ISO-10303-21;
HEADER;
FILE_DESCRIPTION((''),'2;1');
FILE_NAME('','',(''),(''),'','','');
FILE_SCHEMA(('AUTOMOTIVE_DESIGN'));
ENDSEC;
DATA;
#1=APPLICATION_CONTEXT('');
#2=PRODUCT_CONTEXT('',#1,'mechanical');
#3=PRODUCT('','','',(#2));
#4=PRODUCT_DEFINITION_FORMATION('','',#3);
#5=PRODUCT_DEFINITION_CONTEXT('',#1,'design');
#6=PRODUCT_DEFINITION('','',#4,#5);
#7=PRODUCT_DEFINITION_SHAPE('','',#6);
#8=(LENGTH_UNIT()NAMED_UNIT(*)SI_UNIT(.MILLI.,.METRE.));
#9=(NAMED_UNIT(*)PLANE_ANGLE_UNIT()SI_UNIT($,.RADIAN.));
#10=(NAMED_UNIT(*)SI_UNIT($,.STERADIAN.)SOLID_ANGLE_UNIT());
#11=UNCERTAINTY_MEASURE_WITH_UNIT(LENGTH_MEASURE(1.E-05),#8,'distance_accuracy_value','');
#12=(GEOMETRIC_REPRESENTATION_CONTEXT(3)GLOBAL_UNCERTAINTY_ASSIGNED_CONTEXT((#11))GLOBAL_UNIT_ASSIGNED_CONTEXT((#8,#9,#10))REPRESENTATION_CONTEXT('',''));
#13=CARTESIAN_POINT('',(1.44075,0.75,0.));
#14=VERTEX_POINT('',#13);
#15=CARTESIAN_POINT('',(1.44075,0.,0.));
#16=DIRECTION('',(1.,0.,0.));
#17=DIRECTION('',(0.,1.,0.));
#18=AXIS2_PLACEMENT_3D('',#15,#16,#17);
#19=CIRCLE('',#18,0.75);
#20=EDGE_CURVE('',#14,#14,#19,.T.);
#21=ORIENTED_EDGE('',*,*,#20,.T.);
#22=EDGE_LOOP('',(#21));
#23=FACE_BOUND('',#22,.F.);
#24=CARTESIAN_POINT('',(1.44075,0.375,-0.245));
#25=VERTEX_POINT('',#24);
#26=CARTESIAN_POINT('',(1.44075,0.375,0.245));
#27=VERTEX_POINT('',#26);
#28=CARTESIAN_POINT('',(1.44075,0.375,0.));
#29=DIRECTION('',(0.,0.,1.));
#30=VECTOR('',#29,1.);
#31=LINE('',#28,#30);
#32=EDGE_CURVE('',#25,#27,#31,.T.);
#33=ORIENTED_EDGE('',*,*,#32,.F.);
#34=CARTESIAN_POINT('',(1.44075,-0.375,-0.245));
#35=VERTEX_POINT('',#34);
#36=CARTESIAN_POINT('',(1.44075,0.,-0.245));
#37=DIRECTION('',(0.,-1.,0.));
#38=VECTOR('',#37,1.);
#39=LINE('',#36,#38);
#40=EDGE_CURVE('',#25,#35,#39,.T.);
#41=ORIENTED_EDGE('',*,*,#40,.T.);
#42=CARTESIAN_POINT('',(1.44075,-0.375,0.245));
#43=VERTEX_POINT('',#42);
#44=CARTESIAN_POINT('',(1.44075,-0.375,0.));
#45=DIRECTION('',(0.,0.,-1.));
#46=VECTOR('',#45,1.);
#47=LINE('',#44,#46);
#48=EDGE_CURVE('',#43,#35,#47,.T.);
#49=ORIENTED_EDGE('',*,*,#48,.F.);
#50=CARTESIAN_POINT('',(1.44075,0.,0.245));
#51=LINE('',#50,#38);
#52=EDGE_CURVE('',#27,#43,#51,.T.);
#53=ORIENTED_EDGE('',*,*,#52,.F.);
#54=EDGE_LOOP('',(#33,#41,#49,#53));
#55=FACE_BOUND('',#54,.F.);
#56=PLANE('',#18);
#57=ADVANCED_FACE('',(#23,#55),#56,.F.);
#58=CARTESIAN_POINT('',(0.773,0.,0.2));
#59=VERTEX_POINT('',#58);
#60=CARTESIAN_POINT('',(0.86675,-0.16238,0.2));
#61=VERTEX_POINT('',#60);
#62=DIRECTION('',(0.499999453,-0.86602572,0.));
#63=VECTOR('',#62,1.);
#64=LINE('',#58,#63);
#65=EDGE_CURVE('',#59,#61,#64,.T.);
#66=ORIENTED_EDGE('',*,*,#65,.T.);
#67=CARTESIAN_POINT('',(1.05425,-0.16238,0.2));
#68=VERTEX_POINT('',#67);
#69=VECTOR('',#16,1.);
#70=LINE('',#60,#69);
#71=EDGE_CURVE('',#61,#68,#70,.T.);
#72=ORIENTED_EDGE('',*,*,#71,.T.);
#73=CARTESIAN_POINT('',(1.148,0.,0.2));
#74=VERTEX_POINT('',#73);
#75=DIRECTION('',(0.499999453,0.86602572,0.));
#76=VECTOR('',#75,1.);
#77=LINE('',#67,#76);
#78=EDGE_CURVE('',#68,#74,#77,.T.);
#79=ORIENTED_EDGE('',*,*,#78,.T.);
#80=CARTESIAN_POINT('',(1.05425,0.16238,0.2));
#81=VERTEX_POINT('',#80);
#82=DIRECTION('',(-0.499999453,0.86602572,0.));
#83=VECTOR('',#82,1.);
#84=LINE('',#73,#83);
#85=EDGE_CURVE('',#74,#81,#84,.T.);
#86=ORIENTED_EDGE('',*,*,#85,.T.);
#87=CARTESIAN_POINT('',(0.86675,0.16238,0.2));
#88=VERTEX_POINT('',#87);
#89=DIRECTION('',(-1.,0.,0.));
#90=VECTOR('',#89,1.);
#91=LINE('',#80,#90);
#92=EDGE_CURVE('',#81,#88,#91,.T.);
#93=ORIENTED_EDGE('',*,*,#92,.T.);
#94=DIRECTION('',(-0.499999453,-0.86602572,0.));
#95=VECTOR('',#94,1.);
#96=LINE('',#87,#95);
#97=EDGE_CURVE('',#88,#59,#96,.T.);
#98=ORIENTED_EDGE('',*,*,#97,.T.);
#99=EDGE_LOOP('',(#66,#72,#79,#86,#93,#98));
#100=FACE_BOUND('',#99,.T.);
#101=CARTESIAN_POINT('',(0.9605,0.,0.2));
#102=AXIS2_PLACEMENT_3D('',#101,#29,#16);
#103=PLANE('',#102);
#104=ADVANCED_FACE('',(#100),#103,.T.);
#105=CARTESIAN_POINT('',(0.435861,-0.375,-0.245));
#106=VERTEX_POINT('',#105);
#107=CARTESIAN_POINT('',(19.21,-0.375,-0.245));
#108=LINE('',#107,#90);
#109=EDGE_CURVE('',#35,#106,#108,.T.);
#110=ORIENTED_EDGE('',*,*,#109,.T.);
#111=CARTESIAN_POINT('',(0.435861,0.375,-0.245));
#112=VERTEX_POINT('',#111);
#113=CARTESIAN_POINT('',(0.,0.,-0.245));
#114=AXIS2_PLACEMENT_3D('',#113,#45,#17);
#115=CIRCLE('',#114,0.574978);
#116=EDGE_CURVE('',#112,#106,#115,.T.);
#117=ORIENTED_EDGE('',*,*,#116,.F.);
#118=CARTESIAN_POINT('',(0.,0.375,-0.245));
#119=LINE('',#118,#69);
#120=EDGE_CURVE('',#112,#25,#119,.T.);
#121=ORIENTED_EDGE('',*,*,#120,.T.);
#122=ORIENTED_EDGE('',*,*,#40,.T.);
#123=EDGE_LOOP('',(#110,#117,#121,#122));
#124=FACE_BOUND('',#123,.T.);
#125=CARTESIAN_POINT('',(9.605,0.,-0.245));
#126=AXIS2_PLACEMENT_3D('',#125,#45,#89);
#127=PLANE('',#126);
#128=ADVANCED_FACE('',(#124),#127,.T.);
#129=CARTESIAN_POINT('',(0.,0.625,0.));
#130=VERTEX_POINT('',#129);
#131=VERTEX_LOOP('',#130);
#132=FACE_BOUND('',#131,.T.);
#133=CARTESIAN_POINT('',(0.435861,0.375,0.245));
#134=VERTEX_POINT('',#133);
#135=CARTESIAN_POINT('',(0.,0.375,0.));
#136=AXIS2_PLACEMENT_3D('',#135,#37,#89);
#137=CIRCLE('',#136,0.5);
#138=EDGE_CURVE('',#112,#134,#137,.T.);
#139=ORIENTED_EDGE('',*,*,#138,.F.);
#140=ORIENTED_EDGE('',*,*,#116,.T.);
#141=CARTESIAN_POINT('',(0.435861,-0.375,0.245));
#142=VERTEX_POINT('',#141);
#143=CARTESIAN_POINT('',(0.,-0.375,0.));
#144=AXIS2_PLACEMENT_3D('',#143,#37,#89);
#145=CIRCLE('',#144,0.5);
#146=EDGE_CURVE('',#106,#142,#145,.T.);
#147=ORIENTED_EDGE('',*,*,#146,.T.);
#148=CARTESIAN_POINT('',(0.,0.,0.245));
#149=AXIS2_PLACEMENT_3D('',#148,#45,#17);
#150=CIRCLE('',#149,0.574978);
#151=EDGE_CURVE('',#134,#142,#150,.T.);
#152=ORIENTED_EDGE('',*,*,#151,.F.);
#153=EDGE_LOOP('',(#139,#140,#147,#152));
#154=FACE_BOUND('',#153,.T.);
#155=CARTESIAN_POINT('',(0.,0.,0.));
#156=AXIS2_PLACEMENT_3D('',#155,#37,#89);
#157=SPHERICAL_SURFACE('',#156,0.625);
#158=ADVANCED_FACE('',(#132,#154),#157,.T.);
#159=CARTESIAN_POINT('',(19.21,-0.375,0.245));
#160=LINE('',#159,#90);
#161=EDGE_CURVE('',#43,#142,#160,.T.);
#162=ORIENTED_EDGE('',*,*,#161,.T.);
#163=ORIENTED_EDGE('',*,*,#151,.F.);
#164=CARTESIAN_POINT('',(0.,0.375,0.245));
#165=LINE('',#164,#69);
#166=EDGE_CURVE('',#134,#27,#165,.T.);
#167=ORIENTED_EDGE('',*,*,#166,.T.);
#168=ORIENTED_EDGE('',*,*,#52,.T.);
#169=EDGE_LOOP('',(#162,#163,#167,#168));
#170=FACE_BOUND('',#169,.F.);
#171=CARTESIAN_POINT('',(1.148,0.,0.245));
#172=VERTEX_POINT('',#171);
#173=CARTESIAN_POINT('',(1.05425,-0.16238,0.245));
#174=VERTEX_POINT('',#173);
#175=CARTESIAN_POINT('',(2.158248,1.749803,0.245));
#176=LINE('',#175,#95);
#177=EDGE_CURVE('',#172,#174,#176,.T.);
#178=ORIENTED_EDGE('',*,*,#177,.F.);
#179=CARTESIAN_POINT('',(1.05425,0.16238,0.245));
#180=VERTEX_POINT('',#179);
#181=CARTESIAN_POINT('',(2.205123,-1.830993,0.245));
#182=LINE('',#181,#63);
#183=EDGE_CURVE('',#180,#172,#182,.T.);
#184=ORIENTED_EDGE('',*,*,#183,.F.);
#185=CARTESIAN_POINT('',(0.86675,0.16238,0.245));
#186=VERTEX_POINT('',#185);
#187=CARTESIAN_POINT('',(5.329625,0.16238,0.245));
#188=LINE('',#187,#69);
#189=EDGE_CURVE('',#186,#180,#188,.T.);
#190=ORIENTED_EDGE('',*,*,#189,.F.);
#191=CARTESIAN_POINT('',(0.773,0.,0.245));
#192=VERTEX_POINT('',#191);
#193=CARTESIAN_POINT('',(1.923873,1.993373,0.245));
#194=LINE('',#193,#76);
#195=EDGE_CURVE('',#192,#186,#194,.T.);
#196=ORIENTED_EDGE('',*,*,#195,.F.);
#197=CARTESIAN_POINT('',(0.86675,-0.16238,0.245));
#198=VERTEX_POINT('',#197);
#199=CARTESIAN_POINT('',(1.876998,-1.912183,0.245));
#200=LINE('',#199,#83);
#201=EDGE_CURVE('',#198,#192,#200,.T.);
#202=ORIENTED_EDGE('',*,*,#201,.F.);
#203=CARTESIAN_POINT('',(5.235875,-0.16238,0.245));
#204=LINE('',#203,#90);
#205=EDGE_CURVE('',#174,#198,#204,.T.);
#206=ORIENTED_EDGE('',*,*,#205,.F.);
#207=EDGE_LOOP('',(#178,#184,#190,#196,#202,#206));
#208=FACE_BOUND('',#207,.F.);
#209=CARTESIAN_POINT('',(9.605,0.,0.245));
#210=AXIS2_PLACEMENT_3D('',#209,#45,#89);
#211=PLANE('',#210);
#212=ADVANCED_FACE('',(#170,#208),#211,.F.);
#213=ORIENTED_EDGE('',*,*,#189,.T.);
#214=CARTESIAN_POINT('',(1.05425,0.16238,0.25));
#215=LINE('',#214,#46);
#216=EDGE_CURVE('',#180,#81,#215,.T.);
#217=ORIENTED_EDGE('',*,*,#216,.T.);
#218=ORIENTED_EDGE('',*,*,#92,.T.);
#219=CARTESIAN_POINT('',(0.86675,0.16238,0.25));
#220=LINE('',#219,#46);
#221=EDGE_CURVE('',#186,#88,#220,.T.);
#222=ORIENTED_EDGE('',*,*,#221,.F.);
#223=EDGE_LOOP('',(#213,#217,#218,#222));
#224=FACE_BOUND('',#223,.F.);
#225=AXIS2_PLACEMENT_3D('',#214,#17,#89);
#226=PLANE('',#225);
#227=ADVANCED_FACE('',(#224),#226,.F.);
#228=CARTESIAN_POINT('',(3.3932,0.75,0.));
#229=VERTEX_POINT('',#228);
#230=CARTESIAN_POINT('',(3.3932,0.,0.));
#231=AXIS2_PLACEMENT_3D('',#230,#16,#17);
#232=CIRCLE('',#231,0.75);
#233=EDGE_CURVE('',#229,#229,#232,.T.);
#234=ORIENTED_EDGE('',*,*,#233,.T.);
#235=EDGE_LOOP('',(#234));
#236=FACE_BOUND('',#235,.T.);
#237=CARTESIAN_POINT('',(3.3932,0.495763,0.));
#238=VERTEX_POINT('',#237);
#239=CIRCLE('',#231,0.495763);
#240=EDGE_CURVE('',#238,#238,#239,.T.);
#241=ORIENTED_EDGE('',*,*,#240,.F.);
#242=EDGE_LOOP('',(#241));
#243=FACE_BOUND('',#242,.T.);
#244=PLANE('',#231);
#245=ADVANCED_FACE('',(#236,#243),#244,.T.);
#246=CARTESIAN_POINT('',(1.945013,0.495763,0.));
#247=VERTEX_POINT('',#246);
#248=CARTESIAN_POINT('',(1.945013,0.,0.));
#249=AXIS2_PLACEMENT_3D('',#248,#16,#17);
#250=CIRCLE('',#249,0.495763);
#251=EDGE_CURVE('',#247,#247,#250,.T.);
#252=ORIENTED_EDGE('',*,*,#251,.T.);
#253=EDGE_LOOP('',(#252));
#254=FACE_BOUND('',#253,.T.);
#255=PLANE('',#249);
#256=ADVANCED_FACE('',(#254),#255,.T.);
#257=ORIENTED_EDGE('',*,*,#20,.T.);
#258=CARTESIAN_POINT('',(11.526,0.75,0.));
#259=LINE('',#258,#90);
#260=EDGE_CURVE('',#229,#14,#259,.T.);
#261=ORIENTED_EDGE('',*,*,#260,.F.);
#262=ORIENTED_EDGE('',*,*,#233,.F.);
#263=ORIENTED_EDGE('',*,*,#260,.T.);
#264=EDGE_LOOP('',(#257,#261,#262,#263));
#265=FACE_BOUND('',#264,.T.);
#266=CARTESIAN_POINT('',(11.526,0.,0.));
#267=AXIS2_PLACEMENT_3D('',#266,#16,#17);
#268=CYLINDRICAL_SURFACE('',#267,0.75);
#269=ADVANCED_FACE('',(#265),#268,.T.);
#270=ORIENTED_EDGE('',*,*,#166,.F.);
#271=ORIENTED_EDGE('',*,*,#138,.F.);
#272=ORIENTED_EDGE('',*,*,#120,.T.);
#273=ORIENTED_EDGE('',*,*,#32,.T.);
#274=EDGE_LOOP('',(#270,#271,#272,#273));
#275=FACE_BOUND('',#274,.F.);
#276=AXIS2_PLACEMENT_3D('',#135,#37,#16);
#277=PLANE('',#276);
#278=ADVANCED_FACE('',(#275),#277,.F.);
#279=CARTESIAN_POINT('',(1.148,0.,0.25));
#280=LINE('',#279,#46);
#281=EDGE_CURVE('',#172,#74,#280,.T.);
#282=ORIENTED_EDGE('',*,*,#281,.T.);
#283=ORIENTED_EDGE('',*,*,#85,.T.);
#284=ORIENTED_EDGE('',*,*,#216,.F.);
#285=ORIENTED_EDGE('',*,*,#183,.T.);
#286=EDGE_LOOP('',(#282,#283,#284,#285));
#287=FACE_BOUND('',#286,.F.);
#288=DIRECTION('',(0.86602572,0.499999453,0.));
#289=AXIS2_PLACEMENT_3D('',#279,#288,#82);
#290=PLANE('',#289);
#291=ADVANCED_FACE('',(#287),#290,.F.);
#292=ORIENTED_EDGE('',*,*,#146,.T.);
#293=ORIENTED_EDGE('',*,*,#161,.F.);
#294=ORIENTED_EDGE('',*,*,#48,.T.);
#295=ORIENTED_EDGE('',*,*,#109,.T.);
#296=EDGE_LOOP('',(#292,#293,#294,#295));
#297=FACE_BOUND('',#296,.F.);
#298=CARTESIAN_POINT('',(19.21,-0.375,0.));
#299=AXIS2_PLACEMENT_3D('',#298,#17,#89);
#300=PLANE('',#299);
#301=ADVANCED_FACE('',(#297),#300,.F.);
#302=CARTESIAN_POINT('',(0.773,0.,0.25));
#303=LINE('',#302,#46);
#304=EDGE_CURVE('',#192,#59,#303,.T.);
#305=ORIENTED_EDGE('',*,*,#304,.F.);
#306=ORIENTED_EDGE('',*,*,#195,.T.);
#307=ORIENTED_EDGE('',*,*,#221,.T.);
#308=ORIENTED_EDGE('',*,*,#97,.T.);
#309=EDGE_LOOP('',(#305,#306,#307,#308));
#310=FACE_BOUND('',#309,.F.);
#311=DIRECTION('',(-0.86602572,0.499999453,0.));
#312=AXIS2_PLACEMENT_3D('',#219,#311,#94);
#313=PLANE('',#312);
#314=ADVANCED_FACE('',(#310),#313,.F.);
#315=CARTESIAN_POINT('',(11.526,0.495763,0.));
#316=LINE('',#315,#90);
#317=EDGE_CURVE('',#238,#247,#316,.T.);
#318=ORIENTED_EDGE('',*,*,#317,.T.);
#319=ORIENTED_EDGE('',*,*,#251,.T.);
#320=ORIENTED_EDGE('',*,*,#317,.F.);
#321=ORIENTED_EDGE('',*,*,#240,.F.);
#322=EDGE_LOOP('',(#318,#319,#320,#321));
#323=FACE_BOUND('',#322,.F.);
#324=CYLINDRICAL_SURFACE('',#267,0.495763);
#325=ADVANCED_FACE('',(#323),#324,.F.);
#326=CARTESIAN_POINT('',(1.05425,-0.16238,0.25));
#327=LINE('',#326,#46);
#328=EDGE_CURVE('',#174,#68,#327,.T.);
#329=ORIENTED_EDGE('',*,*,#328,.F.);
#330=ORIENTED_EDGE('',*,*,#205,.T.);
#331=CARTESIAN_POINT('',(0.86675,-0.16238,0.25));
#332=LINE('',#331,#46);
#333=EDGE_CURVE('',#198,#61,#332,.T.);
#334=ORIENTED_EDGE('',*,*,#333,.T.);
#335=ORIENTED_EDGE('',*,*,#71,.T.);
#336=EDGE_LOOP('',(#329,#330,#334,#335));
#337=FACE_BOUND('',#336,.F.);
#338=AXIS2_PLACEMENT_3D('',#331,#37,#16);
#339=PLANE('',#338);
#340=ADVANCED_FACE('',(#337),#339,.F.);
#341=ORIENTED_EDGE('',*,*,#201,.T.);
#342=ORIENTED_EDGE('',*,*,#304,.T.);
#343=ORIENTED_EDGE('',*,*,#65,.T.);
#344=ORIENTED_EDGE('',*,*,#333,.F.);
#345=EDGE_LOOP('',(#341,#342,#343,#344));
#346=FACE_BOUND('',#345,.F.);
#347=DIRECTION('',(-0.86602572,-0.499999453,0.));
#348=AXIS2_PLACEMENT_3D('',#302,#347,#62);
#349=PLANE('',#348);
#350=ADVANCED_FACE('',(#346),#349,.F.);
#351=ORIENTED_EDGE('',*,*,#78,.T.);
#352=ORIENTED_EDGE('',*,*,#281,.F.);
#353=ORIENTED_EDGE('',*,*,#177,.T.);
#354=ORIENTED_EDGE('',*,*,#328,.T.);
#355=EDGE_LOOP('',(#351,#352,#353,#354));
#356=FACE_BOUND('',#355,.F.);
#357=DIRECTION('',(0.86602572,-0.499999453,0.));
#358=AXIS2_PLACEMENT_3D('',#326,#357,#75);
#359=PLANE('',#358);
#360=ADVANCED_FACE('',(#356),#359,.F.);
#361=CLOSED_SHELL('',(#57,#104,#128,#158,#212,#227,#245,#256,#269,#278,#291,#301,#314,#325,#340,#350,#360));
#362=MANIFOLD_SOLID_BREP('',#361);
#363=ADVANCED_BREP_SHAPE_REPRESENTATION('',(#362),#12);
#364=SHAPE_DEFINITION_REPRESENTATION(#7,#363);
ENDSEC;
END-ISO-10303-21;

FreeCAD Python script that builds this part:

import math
import FreeCAD as App
import Part
import Sketcher


def add_polygon(sketch, points):
    """Adds a closed chain of lines whose ends are joined by coincident constraints."""
    first, n = sketch.GeometryCount, len(points)
    for a, b in zip(points, points[1:] + points[:1]):
        sketch.addGeometry(Part.LineSegment(App.Vector(*a, 0), App.Vector(*b, 0)), False)
    for i in range(n):
        sketch.addConstraint(Sketcher.Constraint("Coincident", first + i, 2, first + (i + 1) % n, 1))

doc = App.newDocument("Part")
body = doc.addObject("PartDesign::Body", "Body")

sketch1 = body.newObject("Sketcher::SketchObject", "Sketch")
sketch1.AttachmentSupport = (doc.getObject("XY_Plane"), [""])
sketch1.MapMode = "FlatFace"
sketch1.addGeometry(Part.LineSegment(App.Vector(19.21, 0.38, 0), App.Vector(0, 0.38, 0)), False)
sketch1.addGeometry(Part.ArcOfCircle(Part.Circle(App.Vector(0, 0, 0), App.Vector(0, 0, 1), 0.38), math.radians(90), math.radians(270)), False)
sketch1.addGeometry(Part.LineSegment(App.Vector(0, -0.38, 0), App.Vector(19.21, -0.38, 0)), False)
sketch1.addGeometry(Part.ArcOfCircle(Part.Circle(App.Vector(19.21, 0, 0), App.Vector(0, 0, 1), 0.38), math.radians(-90), math.radians(90)), False)
sketch1.addConstraint(Sketcher.Constraint("Tangent", 0, 2, 1, 1))
sketch1.addConstraint(Sketcher.Constraint("Tangent", 1, 2, 2, 1))
sketch1.addConstraint(Sketcher.Constraint("Tangent", 2, 2, 3, 1))
sketch1.addConstraint(Sketcher.Constraint("Tangent", 3, 2, 0, 1))
sketch1.addConstraint(Sketcher.Constraint("Horizontal", 0))
sketch1.addConstraint(Sketcher.Constraint("Horizontal", 2))
sketch1.addConstraint(Sketcher.Constraint("Coincident", 1, 3, -1, 1))
sketch1.addConstraint(Sketcher.Constraint("Radius", 1, 0.375))
sketch1.addConstraint(Sketcher.Constraint("DistanceX", 0, 2, 0, 1, 19.21))
pad1 = body.newObject("PartDesign::Pad", "Pad")
pad1.Profile = sketch1
pad1.Length = 0.49
pad1.Midplane = True

sketch2 = body.newObject("Sketcher::SketchObject", "Sketch001")
sketch2.AttachmentSupport = (doc.getObject("XY_Plane"), [""])
sketch2.MapMode = "FlatFace"
sketch2.addGeometry(Part.LineSegment(App.Vector(0, -0.6, 0), App.Vector(0, 0.6, 0)), False)
sketch2.addGeometry(Part.ArcOfCircle(Part.Circle(App.Vector(0, 0, 0), App.Vector(0, 0, 1), 0.6), math.radians(90), math.radians(270)), False)
sketch2.addConstraint(Sketcher.Constraint("Coincident", 0, 1, 1, 2))
sketch2.addConstraint(Sketcher.Constraint("Coincident", 1, 1, 0, 2))
sketch2.addConstraint(Sketcher.Constraint("Vertical", 0))
sketch2.addConstraint(Sketcher.Constraint("Coincident", 1, 3, -1, 1))
sketch2.addConstraint(Sketcher.Constraint("PointOnObject", 0, 1, -2))
sketch2.addConstraint(Sketcher.Constraint("Radius", 1, 0.625))
revolution = body.newObject("PartDesign::Revolution", "Revolution")
revolution.Profile = sketch2
revolution.ReferenceAxis = (sketch2, ["V_Axis"])
revolution.Angle = 360

sketch3 = body.newObject("Sketcher::SketchObject", "Sketch002")
sketch3.AttachmentSupport = (doc.getObject("XY_Plane"), [""])
sketch3.MapMode = "FlatFace"
sketch3.addGeometry(Part.ArcOfCircle(Part.Circle(App.Vector(19.2, 0, 0), App.Vector(0, 0, 1), 0.6), math.radians(-90), math.radians(90)), False)
sketch3.addGeometry(Part.LineSegment(App.Vector(19.2, 0.6, 0), App.Vector(19.2, -0.6, 0)), False)
sketch3.addGeometry(Part.LineSegment(App.Vector(19.2, 0.6, 0), App.Vector(19.2, -0.6, 0)), True)
sketch3.addConstraint(Sketcher.Constraint("Coincident", 0, 1, 1, 2))
sketch3.addConstraint(Sketcher.Constraint("Coincident", 1, 1, 0, 2))
sketch3.addConstraint(Sketcher.Constraint("Vertical", 1))
sketch3.addConstraint(Sketcher.Constraint("Vertical", 2))
sketch3.addConstraint(Sketcher.Constraint("Coincident", 2, 1, 1, 1))
sketch3.addConstraint(Sketcher.Constraint("PointOnObject", 0, 3, -1))
sketch3.addConstraint(Sketcher.Constraint("Equal", 1, 2))
sketch3.addConstraint(Sketcher.Constraint("Radius", 0, 0.625))
sketch3.addConstraint(Sketcher.Constraint("DistanceX", -1, 1, 0, 3, 19.21))
sketch3.addConstraint(Sketcher.Constraint("DistanceX", -1, 1, 0, 1, 19.21))
revolution2 = body.newObject("PartDesign::Revolution", "Revolution001")
revolution2.Profile = sketch3
revolution2.ReferenceAxis = (sketch3, ["Axis0"])
revolution2.Angle = 360

sketch4 = body.newObject("Sketcher::SketchObject", "Sketch003")
sketch4.AttachmentSupport = (doc.getObject("XY_Plane"), [""])
sketch4.MapMode = "FlatFace"
sketch4.AttachmentOffset = App.Placement(App.Vector(0, 0, 0.25), App.Rotation())
add_polygon(sketch4, [(1.05, -0.16), (1.15, 0), (1.05, 0.16), (0.87, 0.16), (0.77, 0), (0.87, -0.16)])
sketch4.addConstraint(Sketcher.Constraint("Horizontal", 2))
sketch4.addConstraint(Sketcher.Constraint("Horizontal", 5))
sketch4.addConstraint(Sketcher.Constraint("Symmetric", 2, 2, 4, 2, -1))
sketch4.addConstraint(Sketcher.Constraint("PointOnObject", 0, 2, -1))
sketch4.addConstraint(Sketcher.Constraint("PointOnObject", 3, 2, -1))
sketch4.addConstraint(Sketcher.Constraint("Parallel", 0, 3))
sketch4.addConstraint(Sketcher.Constraint("Parallel", 1, 4))
sketch4.addConstraint(Sketcher.Constraint("DistanceX", 2, 2, 2, 1, 0.1875))
sketch4.addConstraint(Sketcher.Constraint("DistanceX", -1, 1, 0, 2, 1.148))
sketch4.addConstraint(Sketcher.Constraint("DistanceX", -1, 1, 3, 2, 0.773))
sketch4.addConstraint(Sketcher.Constraint("Distance", 0, 0.1875))
pocket1 = body.newObject("PartDesign::Pocket", "Pocket")
pocket1.Profile = sketch4
pocket1.Length = 0.05

sketch5 = body.newObject("Sketcher::SketchObject", "Sketch004")
sketch5.AttachmentSupport = (doc.getObject("YZ_Plane"), [""])
sketch5.MapMode = "FlatFace"
sketch5.AttachmentOffset = App.Placement(App.Vector(0, 0, 11.526), App.Rotation())
sketch5.addGeometry(Part.Circle(App.Vector(0, 0, 0), App.Vector(0, 0, 1), 0.8), False)
sketch5.addConstraint(Sketcher.Constraint("Coincident", 0, 3, -1, 1))
sketch5.addConstraint(Sketcher.Constraint("Diameter", 0, 1.5))
pad2 = body.newObject("PartDesign::Pad", "Pad001")
pad2.Profile = sketch5
pad2.Length = 10.08525
pad2.Reversed = True

sketch6 = body.newObject("Sketcher::SketchObject", "Sketch005")
sketch6.AttachmentSupport = (doc.getObject("YZ_Plane"), [""])
sketch6.MapMode = "FlatFace"
sketch6.AttachmentOffset = App.Placement(App.Vector(0, 0, 11.526), App.Rotation())
sketch6.addGeometry(Part.Circle(App.Vector(0, 0, 0), App.Vector(0, 0, 1), 3), False)
sketch6.addConstraint(Sketcher.Constraint("Coincident", 0, 3, -1, 1))
sketch6.addConstraint(Sketcher.Constraint("Diameter", 0, 6.0))
pocket2 = body.newObject("PartDesign::Pocket", "Pocket001")
pocket2.Profile = sketch6
pocket2.Length = 26
pocket2.Reversed = True

sketch7 = body.newObject("Sketcher::SketchObject", "Sketch006")
sketch7.AttachmentSupport = (doc.getObject("YZ_Plane"), [""])
sketch7.MapMode = "FlatFace"
sketch7.AttachmentOffset = App.Placement(App.Vector(0, 0, 11.526), App.Rotation())
sketch7.addGeometry(Part.Circle(App.Vector(0, 0, 0), App.Vector(0, 0, 1), 0.5), False)
sketch7.addConstraint(Sketcher.Constraint("Coincident", 0, 3, -1, 1))
sketch7.addConstraint(Sketcher.Constraint("Diameter", 0, 0.991526))
pocket3 = body.newObject("PartDesign::Pocket", "Pocket002")
pocket3.Profile = sketch7
pocket3.Length = 9.580987

sketch8 = body.newObject("Sketcher::SketchObject", "Sketch007")
sketch8.AttachmentSupport = (doc.getObject("YZ_Plane"), [""])
sketch8.MapMode = "FlatFace"
sketch8.AttachmentOffset = App.Placement(App.Vector(0, 0, 3.3932), App.Rotation())
add_polygon(sketch8, [(-8, 8), (-8, -8), (8, -8), (8, 8)])
sketch8.addConstraint(Sketcher.Constraint("Vertical", 0))
sketch8.addConstraint(Sketcher.Constraint("Horizontal", 1))
sketch8.addConstraint(Sketcher.Constraint("Vertical", 2))
sketch8.addConstraint(Sketcher.Constraint("Horizontal", 3))
sketch8.addConstraint(Sketcher.Constraint("Symmetric", 0, 2, 2, 2, -1, 1))
sketch8.addConstraint(Sketcher.Constraint("Equal", 3, 0))
sketch8.addConstraint(Sketcher.Constraint("DistanceX", 1, 1, 1, 2, 15.0))
pocket4 = body.newObject("PartDesign::Pocket", "Pocket003")
pocket4.Profile = sketch8
pocket4.Type = "ThroughAll"
pocket4.Reversed = True

doc.recompute()
